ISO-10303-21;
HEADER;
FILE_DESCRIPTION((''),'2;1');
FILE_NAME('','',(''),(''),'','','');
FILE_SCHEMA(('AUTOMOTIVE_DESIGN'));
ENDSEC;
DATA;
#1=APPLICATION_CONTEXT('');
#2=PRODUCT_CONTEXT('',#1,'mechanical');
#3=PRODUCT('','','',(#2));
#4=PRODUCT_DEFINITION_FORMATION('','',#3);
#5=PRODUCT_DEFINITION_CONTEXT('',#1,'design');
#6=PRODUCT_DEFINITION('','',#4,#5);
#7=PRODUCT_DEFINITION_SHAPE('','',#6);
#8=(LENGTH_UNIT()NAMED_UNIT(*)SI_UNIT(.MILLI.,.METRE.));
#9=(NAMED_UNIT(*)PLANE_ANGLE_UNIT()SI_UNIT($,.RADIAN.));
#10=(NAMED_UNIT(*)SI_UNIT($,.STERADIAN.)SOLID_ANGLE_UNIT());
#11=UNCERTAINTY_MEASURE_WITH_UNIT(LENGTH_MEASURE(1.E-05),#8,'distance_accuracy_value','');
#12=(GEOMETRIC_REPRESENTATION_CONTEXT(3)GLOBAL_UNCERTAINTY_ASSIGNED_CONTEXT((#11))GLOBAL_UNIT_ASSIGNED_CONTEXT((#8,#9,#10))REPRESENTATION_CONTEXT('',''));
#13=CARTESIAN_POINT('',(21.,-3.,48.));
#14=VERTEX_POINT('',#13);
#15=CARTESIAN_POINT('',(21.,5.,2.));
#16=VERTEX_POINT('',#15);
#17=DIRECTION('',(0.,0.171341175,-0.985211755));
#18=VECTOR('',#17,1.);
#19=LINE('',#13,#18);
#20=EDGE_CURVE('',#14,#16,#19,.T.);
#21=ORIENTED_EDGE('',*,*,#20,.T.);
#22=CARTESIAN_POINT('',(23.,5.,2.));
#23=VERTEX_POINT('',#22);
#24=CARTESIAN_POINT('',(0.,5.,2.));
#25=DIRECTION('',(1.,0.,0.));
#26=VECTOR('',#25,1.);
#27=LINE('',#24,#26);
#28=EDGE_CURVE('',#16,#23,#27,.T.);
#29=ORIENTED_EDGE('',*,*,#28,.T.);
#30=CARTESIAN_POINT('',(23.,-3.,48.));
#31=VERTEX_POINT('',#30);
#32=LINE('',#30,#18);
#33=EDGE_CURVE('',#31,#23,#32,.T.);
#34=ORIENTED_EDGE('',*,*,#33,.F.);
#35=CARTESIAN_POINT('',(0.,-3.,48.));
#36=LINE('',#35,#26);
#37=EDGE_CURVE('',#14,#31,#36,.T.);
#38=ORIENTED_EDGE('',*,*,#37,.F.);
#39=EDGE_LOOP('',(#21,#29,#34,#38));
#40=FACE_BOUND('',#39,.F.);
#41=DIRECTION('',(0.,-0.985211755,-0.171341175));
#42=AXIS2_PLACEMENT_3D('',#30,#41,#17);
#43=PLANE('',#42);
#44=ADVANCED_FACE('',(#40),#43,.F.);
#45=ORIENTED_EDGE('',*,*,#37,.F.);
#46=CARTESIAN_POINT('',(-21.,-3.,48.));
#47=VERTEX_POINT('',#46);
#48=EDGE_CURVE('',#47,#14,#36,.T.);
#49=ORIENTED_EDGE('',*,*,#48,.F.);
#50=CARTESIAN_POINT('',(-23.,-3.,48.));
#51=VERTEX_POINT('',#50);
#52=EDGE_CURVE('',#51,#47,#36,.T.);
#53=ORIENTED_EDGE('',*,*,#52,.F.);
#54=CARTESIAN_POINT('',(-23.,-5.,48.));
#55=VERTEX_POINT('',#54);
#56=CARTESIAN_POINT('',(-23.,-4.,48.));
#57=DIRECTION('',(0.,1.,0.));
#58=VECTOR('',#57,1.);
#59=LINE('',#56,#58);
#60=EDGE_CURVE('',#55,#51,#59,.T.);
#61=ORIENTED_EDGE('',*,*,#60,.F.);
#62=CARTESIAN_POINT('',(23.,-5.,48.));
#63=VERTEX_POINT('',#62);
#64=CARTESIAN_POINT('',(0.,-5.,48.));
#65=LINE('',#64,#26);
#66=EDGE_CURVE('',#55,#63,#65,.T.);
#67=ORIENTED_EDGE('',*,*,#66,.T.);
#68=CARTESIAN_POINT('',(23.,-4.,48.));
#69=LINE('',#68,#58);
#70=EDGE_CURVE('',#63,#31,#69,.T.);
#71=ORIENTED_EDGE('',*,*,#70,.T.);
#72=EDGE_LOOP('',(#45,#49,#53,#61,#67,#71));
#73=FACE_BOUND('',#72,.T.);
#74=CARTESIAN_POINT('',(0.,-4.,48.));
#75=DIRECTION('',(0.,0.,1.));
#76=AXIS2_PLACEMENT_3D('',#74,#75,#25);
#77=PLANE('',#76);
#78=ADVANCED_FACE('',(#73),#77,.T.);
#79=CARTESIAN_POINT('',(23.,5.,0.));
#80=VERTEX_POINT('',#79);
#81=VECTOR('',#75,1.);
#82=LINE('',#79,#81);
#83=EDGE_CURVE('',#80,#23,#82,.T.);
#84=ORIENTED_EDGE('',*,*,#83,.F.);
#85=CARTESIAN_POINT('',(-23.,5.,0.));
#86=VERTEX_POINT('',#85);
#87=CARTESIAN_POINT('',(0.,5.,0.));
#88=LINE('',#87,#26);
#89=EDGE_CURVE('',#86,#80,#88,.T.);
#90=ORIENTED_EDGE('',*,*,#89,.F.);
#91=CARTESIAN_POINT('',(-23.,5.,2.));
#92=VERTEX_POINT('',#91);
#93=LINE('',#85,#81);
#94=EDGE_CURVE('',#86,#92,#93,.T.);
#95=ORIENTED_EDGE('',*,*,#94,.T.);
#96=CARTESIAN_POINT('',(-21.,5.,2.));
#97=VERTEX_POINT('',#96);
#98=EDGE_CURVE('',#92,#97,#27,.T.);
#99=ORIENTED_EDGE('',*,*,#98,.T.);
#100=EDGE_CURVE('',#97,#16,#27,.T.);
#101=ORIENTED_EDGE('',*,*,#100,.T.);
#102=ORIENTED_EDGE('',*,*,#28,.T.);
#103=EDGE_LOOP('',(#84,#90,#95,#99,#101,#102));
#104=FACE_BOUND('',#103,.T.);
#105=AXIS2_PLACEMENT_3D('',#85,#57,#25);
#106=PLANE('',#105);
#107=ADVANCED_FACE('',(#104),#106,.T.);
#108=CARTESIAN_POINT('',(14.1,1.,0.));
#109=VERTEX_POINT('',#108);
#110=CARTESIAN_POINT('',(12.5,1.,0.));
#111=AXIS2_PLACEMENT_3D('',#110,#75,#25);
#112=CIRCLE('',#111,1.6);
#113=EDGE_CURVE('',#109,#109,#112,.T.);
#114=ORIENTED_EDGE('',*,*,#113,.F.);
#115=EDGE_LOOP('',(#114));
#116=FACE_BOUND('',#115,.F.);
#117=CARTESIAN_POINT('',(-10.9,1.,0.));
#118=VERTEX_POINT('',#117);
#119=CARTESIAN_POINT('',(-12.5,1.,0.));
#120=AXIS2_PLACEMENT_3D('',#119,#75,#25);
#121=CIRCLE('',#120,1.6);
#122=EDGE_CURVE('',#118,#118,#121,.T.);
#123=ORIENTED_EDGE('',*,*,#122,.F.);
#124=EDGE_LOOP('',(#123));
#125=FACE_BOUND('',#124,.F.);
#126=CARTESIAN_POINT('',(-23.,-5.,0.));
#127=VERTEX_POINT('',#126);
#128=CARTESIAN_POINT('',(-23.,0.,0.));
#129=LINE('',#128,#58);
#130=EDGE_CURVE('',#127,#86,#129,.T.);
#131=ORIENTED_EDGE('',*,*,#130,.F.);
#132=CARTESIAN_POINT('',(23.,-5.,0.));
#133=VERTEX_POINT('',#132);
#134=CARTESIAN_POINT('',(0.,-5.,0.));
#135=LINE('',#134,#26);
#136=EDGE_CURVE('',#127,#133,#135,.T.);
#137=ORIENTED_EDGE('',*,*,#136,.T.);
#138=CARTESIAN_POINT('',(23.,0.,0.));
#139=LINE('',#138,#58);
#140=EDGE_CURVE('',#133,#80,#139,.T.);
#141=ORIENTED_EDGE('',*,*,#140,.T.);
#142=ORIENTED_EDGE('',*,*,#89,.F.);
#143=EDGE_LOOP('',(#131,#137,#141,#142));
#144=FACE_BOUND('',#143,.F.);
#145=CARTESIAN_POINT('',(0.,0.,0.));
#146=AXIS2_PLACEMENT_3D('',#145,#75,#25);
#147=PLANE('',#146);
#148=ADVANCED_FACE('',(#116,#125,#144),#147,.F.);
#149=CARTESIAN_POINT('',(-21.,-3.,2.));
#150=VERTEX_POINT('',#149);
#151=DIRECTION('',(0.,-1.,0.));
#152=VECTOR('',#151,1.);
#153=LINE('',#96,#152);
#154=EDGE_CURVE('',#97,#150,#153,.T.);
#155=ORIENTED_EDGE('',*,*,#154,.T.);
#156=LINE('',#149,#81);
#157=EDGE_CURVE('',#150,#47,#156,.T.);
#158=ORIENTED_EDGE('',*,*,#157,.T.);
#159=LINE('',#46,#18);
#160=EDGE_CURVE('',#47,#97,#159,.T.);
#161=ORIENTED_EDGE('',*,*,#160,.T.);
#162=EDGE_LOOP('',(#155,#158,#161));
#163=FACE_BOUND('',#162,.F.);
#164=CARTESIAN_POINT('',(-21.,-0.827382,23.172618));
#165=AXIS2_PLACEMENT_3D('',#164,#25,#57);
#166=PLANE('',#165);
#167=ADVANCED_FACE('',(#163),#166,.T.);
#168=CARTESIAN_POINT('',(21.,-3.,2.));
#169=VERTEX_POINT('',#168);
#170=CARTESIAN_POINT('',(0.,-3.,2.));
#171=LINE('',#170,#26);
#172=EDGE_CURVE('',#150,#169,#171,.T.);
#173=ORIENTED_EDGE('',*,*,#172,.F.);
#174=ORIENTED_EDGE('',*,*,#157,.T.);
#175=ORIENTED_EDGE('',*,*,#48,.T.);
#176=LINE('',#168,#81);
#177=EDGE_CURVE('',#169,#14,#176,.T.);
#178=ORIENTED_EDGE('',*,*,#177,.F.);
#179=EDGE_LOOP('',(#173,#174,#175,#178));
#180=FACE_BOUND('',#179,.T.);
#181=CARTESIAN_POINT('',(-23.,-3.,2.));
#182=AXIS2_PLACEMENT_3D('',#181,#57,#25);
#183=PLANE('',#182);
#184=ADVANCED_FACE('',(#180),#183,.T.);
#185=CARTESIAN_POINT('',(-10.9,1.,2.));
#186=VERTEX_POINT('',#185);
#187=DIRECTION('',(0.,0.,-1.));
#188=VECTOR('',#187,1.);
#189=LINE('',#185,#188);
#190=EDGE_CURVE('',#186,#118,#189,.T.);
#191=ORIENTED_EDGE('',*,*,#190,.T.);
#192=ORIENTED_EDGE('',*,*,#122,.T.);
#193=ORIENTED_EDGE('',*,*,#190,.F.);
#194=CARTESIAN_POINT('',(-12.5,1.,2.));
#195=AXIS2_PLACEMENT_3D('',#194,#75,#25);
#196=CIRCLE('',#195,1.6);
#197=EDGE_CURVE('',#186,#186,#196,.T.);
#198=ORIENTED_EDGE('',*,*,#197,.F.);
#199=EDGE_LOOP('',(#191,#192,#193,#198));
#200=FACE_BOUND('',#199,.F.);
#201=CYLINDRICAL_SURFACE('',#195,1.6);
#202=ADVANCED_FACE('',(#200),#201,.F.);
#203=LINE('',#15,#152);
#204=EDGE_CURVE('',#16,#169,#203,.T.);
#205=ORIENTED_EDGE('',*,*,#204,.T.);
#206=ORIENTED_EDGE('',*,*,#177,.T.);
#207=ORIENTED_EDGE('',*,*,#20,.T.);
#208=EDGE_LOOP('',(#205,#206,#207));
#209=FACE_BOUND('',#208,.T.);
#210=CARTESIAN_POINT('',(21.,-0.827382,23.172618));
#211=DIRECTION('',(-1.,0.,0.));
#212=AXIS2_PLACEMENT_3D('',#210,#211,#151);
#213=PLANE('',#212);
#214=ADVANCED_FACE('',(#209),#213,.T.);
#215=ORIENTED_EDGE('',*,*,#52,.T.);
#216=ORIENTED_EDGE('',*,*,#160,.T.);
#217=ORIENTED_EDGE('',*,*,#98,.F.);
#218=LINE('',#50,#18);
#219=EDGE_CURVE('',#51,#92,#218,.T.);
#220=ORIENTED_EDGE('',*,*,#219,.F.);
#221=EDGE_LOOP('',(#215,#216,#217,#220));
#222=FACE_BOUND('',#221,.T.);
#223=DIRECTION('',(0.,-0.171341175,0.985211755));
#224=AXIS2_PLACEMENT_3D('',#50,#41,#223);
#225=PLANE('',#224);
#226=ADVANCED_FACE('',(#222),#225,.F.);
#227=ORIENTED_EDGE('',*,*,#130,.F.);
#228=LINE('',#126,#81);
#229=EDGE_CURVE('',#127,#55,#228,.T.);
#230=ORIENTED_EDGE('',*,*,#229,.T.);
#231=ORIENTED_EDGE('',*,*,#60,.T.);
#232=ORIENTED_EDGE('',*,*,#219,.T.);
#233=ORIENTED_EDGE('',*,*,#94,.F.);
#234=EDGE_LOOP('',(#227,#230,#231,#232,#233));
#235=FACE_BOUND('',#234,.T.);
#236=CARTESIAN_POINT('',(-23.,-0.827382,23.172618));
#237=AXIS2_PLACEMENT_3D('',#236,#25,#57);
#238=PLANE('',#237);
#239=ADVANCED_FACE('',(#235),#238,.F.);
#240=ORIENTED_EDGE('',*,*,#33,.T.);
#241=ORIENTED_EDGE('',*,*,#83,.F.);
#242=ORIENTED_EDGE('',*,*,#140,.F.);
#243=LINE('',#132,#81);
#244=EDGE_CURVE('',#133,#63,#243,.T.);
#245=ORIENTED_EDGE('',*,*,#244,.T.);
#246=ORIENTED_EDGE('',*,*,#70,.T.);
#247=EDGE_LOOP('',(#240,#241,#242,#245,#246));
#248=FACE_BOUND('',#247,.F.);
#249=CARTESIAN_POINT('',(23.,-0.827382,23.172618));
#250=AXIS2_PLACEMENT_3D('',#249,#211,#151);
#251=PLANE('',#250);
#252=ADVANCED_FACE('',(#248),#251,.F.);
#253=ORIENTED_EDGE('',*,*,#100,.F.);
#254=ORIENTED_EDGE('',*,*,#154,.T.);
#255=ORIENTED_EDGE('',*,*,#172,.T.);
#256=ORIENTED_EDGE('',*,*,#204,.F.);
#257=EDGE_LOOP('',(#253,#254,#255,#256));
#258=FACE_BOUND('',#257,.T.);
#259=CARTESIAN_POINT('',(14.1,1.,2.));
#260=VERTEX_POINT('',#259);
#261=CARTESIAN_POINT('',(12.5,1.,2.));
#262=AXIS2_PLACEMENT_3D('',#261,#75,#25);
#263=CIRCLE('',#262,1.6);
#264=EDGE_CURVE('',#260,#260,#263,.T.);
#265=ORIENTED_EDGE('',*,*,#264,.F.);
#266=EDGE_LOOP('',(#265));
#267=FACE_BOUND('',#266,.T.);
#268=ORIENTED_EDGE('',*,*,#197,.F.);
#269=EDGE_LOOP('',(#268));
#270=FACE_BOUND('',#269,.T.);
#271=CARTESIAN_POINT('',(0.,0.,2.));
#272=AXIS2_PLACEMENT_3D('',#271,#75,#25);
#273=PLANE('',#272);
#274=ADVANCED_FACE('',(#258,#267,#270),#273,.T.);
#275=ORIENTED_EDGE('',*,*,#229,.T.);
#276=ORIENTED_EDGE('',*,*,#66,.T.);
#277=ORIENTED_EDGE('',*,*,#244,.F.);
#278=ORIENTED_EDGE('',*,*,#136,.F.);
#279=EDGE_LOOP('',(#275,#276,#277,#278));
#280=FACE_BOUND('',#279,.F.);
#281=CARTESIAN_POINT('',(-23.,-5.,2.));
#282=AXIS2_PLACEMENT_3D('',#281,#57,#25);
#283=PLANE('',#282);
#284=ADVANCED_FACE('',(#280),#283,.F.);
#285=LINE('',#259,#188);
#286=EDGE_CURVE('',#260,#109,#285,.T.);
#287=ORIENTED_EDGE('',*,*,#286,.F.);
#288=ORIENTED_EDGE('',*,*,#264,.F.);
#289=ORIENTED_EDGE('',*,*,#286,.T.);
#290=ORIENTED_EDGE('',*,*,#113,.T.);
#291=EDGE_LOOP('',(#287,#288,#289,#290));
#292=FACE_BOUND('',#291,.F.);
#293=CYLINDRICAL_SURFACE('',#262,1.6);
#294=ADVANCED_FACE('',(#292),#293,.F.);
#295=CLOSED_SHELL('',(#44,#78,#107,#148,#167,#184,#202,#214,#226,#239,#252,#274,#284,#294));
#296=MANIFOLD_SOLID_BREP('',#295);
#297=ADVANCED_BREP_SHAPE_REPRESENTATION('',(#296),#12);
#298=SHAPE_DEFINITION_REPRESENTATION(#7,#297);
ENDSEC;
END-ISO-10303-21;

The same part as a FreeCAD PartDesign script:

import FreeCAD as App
import Part
import Sketcher
Q = App.Units.Quantity

doc = App.newDocument("Part")
body = doc.addObject("PartDesign::Body", "Body")

# Sketch on XY plane
sketch1 = body.newObject("Sketcher::SketchObject", "Sketch")
sketch1.AttachmentSupport = (doc.getObject("XY_Plane"), [""])
sketch1.MapMode = "FlatFace"
sketch1.addGeometry([
    Part.LineSegment(App.Vector(-23, 5, 0), App.Vector(-23, -5, 0)),
    Part.LineSegment(App.Vector(-23, -5, 0), App.Vector(23, -5, 0)),
    Part.LineSegment(App.Vector(23, -5, 0), App.Vector(23, 5, 0)),
    Part.LineSegment(App.Vector(23, 5, 0), App.Vector(-23, 5, 0)),
], False)
sketch1.addConstraint([
    Sketcher.Constraint("Coincident", 0, 2, 1, 1),
    Sketcher.Constraint("Coincident", 1, 2, 2, 1),
    Sketcher.Constraint("Coincident", 2, 2, 3, 1),
    Sketcher.Constraint("Coincident", 3, 2, 0, 1),
    Sketcher.Constraint("Vertical", 0),
    Sketcher.Constraint("Horizontal", 1),
    Sketcher.Constraint("Vertical", 2),
    Sketcher.Constraint("Horizontal", 3),
    Sketcher.Constraint("Symmetric", 0, 2, 2, 2, -1, 1),
    Sketcher.Constraint("DistanceX", 1, 1, 1, 2, Q("46 mm")),
    Sketcher.Constraint("DistanceY", 0, 2, 0, 1, Q("10 mm")),
])
pad1 = body.newObject("PartDesign::Pad", "Pad")
pad1.Profile = sketch1
pad1.Length = 2

# Sketch on XY plane
sketch2 = body.newObject("Sketcher::SketchObject", "Sketch001")
sketch2.AttachmentSupport = (doc.getObject("XY_Plane"), [""])
sketch2.MapMode = "FlatFace"
sketch2.AttachmentOffset = App.Placement(App.Vector(0, 0, 2), App.Rotation())
sketch2.addGeometry([
    Part.LineSegment(App.Vector(-23, -3, 0), App.Vector(-23, -5, 0)),
    Part.LineSegment(App.Vector(-23, -5, 0), App.Vector(23, -5, 0)),
    Part.LineSegment(App.Vector(23, -5, 0), App.Vector(23, -3, 0)),
    Part.LineSegment(App.Vector(23, -3, 0), App.Vector(-23, -3, 0)),
], False)
sketch2.addConstraint([
    Sketcher.Constraint("Coincident", 0, 2, 1, 1),
    Sketcher.Constraint("Coincident", 1, 2, 2, 1),
    Sketcher.Constraint("Coincident", 2, 2, 3, 1),
    Sketcher.Constraint("Coincident", 3, 2, 0, 1),
    Sketcher.Constraint("Vertical", 0),
    Sketcher.Constraint("Horizontal", 1),
    Sketcher.Constraint("Vertical", 2),
    Sketcher.Constraint("Horizontal", 3),
    Sketcher.Constraint("DistanceX", 1, 1, 1, 2, Q("46 mm")),
    Sketcher.Constraint("DistanceY", 0, 2, 0, 1, Q("2 mm")),
    Sketcher.Constraint("DistanceX", 0, 2, -1, 1, Q("23 mm")),
    Sketcher.Constraint("DistanceY", 0, 2, -1, 1, Q("5 mm")),
])
pad2 = body.newObject("PartDesign::Pad", "Pad001")
pad2.Profile = sketch2
pad2.Length = 46

# Sketch on YZ plane
sketch3 = body.newObject("Sketcher::SketchObject", "Sketch002")
sketch3.AttachmentSupport = (doc.getObject("YZ_Plane"), [""])
sketch3.MapMode = "FlatFace"
sketch3.AttachmentOffset = App.Placement(App.Vector(0, 0, 23), App.Rotation())
sketch3.addGeometry([
    Part.LineSegment(App.Vector(5, 2, 0), App.Vector(-3, 48, 0)),
    Part.LineSegment(App.Vector(-3, 48, 0), App.Vector(-3, 2, 0)),
    Part.LineSegment(App.Vector(-3, 2, 0), App.Vector(5, 2, 0)),
], False)
sketch3.addConstraint([
    Sketcher.Constraint("Coincident", 0, 2, 1, 1),
    Sketcher.Constraint("Coincident", 1, 2, 2, 1),
    Sketcher.Constraint("Coincident", 2, 2, 0, 1),
    Sketcher.Constraint("Vertical", 1),
    Sketcher.Constraint("Horizontal", 2),
    Sketcher.Constraint("DistanceX", 2, 1, 2, 2, Q("8 mm")),
    Sketcher.Constraint("DistanceY", 1, 2, 1, 1, Q("46 mm")),
    Sketcher.Constraint("DistanceX", 0, 2, -1, 1, Q("3 mm")),
    Sketcher.Constraint("DistanceY", -1, 1, 0, 2, Q("48 mm")),
])
pad3 = body.newObject("PartDesign::Pad", "Pad002")
pad3.Profile = sketch3
pad3.Length = 2
pad3.Reversed = True
doc.recompute()

mirrored = body.newObject("PartDesign::Mirrored", "Mirrored")
mirrored.Originals = [pad3]
mirrored.MirrorPlane = (doc.getObject("YZ_Plane"), [""])
body.Tip = mirrored

# Sketch on XY plane
sketch4 = body.newObject("Sketcher::SketchObject", "Sketch003")
sketch4.AttachmentSupport = (doc.getObject("XY_Plane"), [""])
sketch4.MapMode = "FlatFace"
sketch4.AttachmentOffset = App.Placement(App.Vector(0, 0, 2), App.Rotation())
sketch4.addGeometry([
    Part.Circle(App.Vector(-12.5, 1, 0), App.Vector(0, 0, 1), 1.6),
    Part.Circle(App.Vector(12.5, 1, 0), App.Vector(0, 0, 1), 1.6),
], False)
sketch4.addConstraint([
    Sketcher.Constraint("Equal", 0, 1),
    Sketcher.Constraint("Symmetric", 0, 3, 1, 3, -2),
    Sketcher.Constraint("Diameter", 0, Q("3.2 mm")),
    Sketcher.Constraint("DistanceY", -1, 1, 0, 3, Q("1 mm")),
    Sketcher.Constraint("DistanceX", 0, 3, 1, 3, Q("25 mm")),
])
pocket1 = body.newObject("PartDesign::Pocket", "Pocket")
pocket1.Profile = sketch4
pocket1.Type = "ThroughAll"

doc.recompute()
